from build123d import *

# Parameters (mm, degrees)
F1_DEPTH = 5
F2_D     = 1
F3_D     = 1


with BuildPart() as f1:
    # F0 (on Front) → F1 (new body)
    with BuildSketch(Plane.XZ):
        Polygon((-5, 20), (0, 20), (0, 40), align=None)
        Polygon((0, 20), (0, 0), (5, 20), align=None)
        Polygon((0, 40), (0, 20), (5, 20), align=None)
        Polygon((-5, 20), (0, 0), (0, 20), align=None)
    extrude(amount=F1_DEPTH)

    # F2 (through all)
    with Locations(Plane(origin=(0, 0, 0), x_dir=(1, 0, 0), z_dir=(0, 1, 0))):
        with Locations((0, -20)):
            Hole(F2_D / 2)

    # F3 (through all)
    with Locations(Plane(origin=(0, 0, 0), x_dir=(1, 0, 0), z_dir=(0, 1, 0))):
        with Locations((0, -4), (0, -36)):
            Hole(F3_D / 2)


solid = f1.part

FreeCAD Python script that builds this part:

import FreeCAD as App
import Part
import Sketcher

V = App.Vector


def add_polygon(sketch, points):
    """Adds a closed chain of lines whose ends are joined by coincident constraints."""
    first, n = sketch.GeometryCount, len(points)
    for a, b in zip(points, points[1:] + points[:1]):
        sketch.addGeometry(Part.LineSegment(App.Vector(*a, 0), App.Vector(*b, 0)), False)
    for i in range(n):
        sketch.addConstraint(Sketcher.Constraint("Coincident", first + i, 2, first + (i + 1) % n, 1))

doc = App.newDocument("Part")
params = doc.addObject("Spreadsheet::Sheet", "Params")
for row, (alias, value) in enumerate([
    ("pad1_length", "5 mm"),
    ("sketch2_diameter", "1 mm"),
    ("hole_diameter", "1 mm"),
    ("sketch3_diameter", "1 mm"),
    ("hole2_diameter", "1 mm"),
], start=1):
    params.set(f"A{row}", alias)
    params.set(f"B{row}", "=" + value)
    params.setAlias(f"B{row}", alias)

body = doc.addObject("PartDesign::Body", "Body")

sketch1 = body.newObject("Sketcher::SketchObject", "Sketch")
sketch1.AttachmentSupport = (doc.getObject("XZ_Plane"), [""])
sketch1.MapMode = "FlatFace"
add_polygon(sketch1, [(-5, 20), (0, 0), (5, 20), (0, 40)])
sketch1.addConstraint([
    Sketcher.Constraint("Coincident", 0, 2, -1, 1),
    Sketcher.Constraint("Symmetric", 1, 2, 3, 2, -2),
    Sketcher.Constraint("PointOnObject", 2, 2, -2),
    Sketcher.Constraint("Parallel", 0, 2),
    Sketcher.Constraint("DistanceX", -1, 1, 1, 2, 5.0),
    Sketcher.Constraint("DistanceY", -1, 1, 1, 2, 20.0),
])
pad1 = body.newObject("PartDesign::Pad", "Pad")
pad1.Profile = sketch1
pad1.setExpression("Length", "Params.pad1_length")

sketch2 = body.newObject("Sketcher::SketchObject", "Sketch001")
sketch2.AttachmentSupport = (doc.getObject("XZ_Plane"), [""])
sketch2.MapMode = "FlatFace"
sketch2.addGeometry(Part.Circle(V(0, 20, 0), V(0, 0, 1), 0.5), False)
sketch2.addConstraint([
    Sketcher.Constraint("PointOnObject", 0, 3, -2),
    Sketcher.Constraint("Diameter", 0, 1.0),
    Sketcher.Constraint("DistanceY", -1, 1, 0, 3, 20.0),
])
sketch2.setExpression("Constraints[1]", "Params.sketch2_diameter")
doc.recompute()
hole = body.newObject("PartDesign::Hole", "Hole")
hole.Profile = sketch2
hole.ThreadType = "None"
hole.setExpression("Diameter", "Params.hole_diameter")
hole.DepthType = "ThroughAll"
hole.Reversed = True

sketch3 = body.newObject("Sketcher::SketchObject", "Sketch002")
sketch3.AttachmentSupport = (doc.getObject("XZ_Plane"), [""])
sketch3.MapMode = "FlatFace"
sketch3.addGeometry([
    Part.Circle(V(0, 4, 0), V(0, 0, 1), 0.5),
    Part.Circle(V(0, 36, 0), V(0, 0, 1), 0.5),
], False)
sketch3.addConstraint([
    Sketcher.Constraint("Equal", 0, 1),
    Sketcher.Constraint("PointOnObject", 0, 3, -2),
    Sketcher.Constraint("PointOnObject", 1, 3, -2),
    Sketcher.Constraint("Diameter", 0, 1.0),
    Sketcher.Constraint("DistanceY", -1, 1, 0, 3, 4.0),
    Sketcher.Constraint("DistanceY", -1, 1, 1, 3, 36.0),
])
sketch3.setExpression("Constraints[3]", "Params.sketch3_diameter")
doc.recompute()
hole2 = body.newObject("PartDesign::Hole", "Hole001")
hole2.Profile = sketch3
hole2.ThreadType = "None"
hole2.setExpression("Diameter", "Params.hole2_diameter")
hole2.DepthType = "ThroughAll"
hole2.Reversed = True

doc.recompute()
